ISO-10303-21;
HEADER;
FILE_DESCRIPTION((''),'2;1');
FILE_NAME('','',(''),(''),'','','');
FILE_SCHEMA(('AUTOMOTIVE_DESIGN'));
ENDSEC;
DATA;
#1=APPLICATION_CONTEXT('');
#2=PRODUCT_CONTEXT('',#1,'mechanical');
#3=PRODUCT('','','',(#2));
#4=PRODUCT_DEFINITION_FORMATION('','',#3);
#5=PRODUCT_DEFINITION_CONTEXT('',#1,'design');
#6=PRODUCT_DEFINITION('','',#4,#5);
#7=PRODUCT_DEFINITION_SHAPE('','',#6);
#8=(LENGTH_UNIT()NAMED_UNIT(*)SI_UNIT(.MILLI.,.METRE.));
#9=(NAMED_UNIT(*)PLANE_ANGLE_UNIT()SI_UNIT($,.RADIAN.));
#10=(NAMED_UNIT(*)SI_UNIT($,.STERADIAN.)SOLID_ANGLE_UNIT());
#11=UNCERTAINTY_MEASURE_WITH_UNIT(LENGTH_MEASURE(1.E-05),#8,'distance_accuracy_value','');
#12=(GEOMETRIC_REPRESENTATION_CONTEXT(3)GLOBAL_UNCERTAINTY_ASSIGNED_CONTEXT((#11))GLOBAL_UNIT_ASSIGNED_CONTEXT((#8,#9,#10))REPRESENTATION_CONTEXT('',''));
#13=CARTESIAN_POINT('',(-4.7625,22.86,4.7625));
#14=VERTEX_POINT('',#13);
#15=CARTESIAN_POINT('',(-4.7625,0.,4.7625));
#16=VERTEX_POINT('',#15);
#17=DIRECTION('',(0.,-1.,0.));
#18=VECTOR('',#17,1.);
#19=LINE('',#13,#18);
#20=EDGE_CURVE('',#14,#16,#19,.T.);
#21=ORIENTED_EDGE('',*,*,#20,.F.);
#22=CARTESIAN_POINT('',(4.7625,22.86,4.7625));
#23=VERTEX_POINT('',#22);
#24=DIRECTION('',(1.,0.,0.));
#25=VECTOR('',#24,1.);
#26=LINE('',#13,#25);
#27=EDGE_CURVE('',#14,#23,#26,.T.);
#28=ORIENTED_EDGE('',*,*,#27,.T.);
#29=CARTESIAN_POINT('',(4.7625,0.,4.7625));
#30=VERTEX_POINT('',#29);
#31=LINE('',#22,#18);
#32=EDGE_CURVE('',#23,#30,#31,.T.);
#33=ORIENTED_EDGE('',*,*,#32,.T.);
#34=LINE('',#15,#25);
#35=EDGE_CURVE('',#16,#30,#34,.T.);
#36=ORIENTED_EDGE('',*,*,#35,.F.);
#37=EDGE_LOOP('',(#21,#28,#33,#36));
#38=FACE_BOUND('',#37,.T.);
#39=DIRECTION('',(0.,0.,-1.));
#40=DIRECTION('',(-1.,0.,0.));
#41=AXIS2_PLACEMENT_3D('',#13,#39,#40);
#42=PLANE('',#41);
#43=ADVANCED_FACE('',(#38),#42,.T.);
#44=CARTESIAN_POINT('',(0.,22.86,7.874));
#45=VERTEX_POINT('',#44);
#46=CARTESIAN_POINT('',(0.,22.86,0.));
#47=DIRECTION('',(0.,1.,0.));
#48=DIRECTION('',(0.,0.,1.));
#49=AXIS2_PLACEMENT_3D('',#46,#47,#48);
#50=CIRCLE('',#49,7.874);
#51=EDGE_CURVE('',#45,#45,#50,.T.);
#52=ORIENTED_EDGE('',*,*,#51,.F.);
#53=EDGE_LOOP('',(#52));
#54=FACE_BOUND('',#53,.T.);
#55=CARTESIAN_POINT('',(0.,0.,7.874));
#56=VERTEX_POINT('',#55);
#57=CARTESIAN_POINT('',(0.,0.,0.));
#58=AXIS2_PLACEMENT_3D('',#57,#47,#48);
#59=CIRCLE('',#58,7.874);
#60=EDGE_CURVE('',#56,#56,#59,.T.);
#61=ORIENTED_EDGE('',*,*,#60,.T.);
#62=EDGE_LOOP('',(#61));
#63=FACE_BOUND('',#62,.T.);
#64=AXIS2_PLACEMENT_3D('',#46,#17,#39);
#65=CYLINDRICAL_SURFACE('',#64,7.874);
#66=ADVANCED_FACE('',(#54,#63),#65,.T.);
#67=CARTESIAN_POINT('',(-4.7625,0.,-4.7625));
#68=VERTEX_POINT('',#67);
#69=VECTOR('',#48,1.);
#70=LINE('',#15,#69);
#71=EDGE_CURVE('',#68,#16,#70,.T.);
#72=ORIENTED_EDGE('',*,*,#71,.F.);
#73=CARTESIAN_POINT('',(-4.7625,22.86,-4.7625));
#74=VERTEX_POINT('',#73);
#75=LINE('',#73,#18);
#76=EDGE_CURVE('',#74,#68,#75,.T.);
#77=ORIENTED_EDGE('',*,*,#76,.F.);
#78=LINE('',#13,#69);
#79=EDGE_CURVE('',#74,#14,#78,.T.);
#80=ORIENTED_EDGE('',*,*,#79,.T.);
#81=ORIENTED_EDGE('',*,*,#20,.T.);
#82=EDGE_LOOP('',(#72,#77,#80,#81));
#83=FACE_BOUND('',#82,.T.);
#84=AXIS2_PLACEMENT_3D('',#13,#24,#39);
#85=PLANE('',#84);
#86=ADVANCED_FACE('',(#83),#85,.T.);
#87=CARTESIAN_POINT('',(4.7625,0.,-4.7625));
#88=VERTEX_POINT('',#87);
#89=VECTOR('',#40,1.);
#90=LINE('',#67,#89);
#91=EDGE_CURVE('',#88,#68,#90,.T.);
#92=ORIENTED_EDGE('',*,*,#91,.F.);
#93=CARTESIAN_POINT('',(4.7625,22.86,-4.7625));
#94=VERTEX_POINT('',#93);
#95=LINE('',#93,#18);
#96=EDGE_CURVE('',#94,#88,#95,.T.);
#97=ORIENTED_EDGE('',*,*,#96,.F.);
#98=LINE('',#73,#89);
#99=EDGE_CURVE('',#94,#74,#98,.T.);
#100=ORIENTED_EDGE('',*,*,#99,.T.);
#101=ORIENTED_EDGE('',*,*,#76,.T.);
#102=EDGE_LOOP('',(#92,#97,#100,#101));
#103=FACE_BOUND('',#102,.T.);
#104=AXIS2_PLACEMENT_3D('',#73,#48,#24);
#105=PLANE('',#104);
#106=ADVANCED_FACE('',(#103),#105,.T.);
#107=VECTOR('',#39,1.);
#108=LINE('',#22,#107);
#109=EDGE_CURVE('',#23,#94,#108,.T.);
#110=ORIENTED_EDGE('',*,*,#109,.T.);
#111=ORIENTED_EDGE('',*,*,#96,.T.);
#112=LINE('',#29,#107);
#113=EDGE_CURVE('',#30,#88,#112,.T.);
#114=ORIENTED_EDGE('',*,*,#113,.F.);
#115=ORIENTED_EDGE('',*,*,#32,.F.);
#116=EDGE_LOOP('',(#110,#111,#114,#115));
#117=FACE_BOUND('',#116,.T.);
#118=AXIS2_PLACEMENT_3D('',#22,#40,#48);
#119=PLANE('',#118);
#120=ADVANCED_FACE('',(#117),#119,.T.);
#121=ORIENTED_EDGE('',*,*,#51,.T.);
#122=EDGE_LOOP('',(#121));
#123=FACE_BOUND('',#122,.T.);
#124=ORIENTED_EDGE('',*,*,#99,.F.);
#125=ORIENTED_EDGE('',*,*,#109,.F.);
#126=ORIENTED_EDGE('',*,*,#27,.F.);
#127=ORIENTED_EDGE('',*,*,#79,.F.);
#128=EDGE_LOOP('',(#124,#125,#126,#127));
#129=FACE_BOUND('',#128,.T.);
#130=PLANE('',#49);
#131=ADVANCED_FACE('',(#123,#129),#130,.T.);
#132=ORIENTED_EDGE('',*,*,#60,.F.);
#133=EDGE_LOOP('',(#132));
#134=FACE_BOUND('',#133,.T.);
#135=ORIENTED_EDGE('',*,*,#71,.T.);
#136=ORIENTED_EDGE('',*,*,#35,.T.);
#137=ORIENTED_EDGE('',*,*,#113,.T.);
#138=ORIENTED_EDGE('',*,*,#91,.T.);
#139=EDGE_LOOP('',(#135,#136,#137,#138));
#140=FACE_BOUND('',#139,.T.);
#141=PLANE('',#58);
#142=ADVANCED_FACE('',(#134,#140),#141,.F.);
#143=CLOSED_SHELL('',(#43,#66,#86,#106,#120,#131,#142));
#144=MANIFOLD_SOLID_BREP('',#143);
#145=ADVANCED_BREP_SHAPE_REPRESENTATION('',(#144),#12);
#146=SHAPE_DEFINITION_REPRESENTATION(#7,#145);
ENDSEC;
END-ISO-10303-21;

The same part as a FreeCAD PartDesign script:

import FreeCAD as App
import Part
import Sketcher
from FreeCAD import Vector
Q = App.Units.Quantity


def add_polygon(sketch, points):
    """Adds a closed chain of lines whose ends are joined by coincident constraints."""
    first, n = sketch.GeometryCount, len(points)
    for a, b in zip(points, points[1:] + points[:1]):
        sketch.addGeometry(Part.LineSegment(App.Vector(*a, 0), App.Vector(*b, 0)), False)
    for i in range(n):
        sketch.addConstraint(Sketcher.Constraint("Coincident", first + i, 2, first + (i + 1) % n, 1))

doc = App.newDocument("Part")
body = doc.addObject("PartDesign::Body", "Body")

sketch1 = doc.addObject("Sketcher::SketchObject", "Sketch")
body.addObject(sketch1)
sketch1.AttachmentSupport = (doc.XZ_Plane, [""])
sketch1.MapMode = "FlatFace"
sketch1.addGeometry(Part.Circle(Vector(0, 0, 0), Vector(0, 0, 1), 8), False)
add_polygon(sketch1, [(5, 5), (-5, 5), (-5, -5), (5, -5)])
sketch1.addConstraint([
    Sketcher.Constraint("Horizontal", 1),
    Sketcher.Constraint("Vertical", 2),
    Sketcher.Constraint("Horizontal", 3),
    Sketcher.Constraint("Vertical", 4),
    Sketcher.Constraint("Coincident", 0, 3, -1, 1),
    Sketcher.Constraint("Symmetric", 1, 2, 3, 2, -1, 1),
    Sketcher.Constraint("Equal", 3, 2),
    Sketcher.Constraint("Diameter", 0, Q("0.62 in")),
    Sketcher.Constraint("DistanceX", 1, 2, 1, 1, Q("0.375 in")),
])
pad1 = doc.addObject("PartDesign::Pad", "Pad")
body.addObject(pad1)
pad1.Profile = sketch1
pad1.Length = Q("0.9 in")
pad1.Reversed = True

doc.recompute()
